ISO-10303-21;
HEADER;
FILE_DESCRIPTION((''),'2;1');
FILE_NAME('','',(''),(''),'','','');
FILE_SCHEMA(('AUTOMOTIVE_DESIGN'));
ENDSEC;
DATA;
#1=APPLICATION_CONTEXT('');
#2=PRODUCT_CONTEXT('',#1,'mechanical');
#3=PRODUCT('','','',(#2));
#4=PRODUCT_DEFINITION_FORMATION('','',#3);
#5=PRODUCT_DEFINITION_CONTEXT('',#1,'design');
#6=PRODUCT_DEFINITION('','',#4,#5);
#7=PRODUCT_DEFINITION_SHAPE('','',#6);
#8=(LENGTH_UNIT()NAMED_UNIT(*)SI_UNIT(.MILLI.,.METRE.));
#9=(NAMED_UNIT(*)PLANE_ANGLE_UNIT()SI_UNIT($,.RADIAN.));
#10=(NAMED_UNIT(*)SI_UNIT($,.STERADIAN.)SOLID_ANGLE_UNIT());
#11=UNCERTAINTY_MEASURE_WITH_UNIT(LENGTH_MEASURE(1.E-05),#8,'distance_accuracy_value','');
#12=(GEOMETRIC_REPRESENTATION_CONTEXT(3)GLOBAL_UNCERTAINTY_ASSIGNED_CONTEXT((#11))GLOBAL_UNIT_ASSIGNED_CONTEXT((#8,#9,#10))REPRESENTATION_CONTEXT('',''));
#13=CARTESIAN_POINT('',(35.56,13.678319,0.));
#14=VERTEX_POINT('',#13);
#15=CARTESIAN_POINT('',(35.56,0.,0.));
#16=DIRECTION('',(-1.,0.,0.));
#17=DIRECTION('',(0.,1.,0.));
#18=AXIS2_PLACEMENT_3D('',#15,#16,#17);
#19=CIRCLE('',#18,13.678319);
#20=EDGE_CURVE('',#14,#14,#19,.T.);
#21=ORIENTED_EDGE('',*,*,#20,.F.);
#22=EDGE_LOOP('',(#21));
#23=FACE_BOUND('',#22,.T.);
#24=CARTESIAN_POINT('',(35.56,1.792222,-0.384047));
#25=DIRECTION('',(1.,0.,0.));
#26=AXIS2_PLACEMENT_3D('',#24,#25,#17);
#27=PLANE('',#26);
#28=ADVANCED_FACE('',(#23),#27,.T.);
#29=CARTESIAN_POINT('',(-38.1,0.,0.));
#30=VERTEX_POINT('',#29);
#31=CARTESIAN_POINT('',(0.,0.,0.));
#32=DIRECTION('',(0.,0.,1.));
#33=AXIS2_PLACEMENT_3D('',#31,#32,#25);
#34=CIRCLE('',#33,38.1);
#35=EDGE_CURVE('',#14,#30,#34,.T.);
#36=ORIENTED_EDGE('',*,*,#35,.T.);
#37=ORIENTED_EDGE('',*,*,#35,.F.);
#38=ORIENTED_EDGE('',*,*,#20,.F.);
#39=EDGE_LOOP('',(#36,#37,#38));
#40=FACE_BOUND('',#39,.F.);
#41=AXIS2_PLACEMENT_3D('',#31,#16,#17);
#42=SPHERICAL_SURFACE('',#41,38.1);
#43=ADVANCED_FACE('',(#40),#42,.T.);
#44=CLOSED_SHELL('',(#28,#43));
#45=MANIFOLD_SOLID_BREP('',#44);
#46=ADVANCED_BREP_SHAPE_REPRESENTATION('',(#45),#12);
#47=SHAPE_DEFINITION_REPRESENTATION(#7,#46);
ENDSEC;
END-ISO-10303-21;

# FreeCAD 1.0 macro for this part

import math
import FreeCAD as App
import Part
import Sketcher
from FreeCAD import Vector
Q = App.Units.Quantity


def add_polygon(sketch, points):
    """Adds a closed chain of lines whose ends are joined by coincident constraints."""
    first, n = sketch.GeometryCount, len(points)
    for a, b in zip(points, points[1:] + points[:1]):
        sketch.addGeometry(Part.LineSegment(App.Vector(*a, 0), App.Vector(*b, 0)), False)
    for i in range(n):
        sketch.addConstraint(Sketcher.Constraint("Coincident", first + i, 2, first + (i + 1) % n, 1))

doc = App.newDocument("Part")
params = doc.addObject("Spreadsheet::Sheet", "Params")
for row, (alias, value) in enumerate([
    ("sketch1_radius", "1.5 in"),
    ("revolution_angle", "360 deg"),
    ("sketch2_height", "4 in"),
    ("pocket1_length", "1.38 in"),
], start=1):
    params.set(f"A{row}", alias)
    params.set(f"B{row}", "=" + value)
    params.setAlias(f"B{row}", alias)

body = doc.addObject("PartDesign::Body", "Body")

# Sketch on XY plane
sketch1 = body.newObject("Sketcher::SketchObject", "Sketch")
sketch1.AttachmentSupport = (doc.getObject("XY_Plane"), [""])
sketch1.MapMode = "FlatFace"
sketch1.addGeometry(Part.ArcOfCircle(Part.Circle(Vector(0, 0, 0), Vector(0, 0, 1), 38.1), math.radians(0), math.radians(180)), False)
sketch1.addGeometry(Part.LineSegment(Vector(-38.1, 0, 0), Vector(38.1, 0, 0)), False)
sketch1.addConstraint(Sketcher.Constraint("Coincident", 0, 1, 1, 2))
sketch1.addConstraint(Sketcher.Constraint("Coincident", 1, 1, 0, 2))
sketch1.addConstraint(Sketcher.Constraint("Horizontal", 1))
sketch1.addConstraint(Sketcher.Constraint("Coincident", 0, 3, -1, 1))
sketch1.addConstraint(Sketcher.Constraint("PointOnObject", 0, 1, -1))
sketch1.addConstraint(Sketcher.Constraint("Radius", 0, Q("1.5 in")))
sketch1.setExpression("Constraints[5]", "Params.sketch1_radius")
revolution = body.newObject("PartDesign::Revolution", "Revolution")
revolution.Profile = sketch1
revolution.ReferenceAxis = (sketch1, ["H_Axis"])
revolution.setExpression("Angle", "Params.revolution_angle")

# Sketch on YZ plane
sketch2 = body.newObject("Sketcher::SketchObject", "Sketch001")
sketch2.AttachmentSupport = (doc.getObject("YZ_Plane"), [""])
sketch2.MapMode = "FlatFace"
sketch2.AttachmentOffset = App.Placement(Vector(0, 0, 1.4 * 25.4), App.Rotation())
add_polygon(sketch2, [(-52.25033, 50.415953), (-52.25033, -51.184047), (55.834774, -51.184047), (55.834774, 50.415953)])  # lines 0-3
sketch2.addConstraint(Sketcher.Constraint("Vertical", 0))
sketch2.addConstraint(Sketcher.Constraint("Horizontal", 1))
sketch2.addConstraint(Sketcher.Constraint("Vertical", 2))
sketch2.addConstraint(Sketcher.Constraint("Horizontal", 3))
sketch2.addConstraint(Sketcher.Constraint("DistanceY", 0, 2, 0, 1, Q("4 in")))
sketch2.addConstraint(Sketcher.Constraint("DistanceX", 1, 1, 1, 2, 108.085104))
sketch2.addConstraint(Sketcher.Constraint("DistanceX", 0, 2, -1, 1, 52.25033))
sketch2.addConstraint(Sketcher.Constraint("DistanceY", 0, 2, -1, 1, 51.184047))
sketch2.setExpression("Constraints[8]", "Params.sketch2_height")
pocket1 = body.newObject("PartDesign::Pocket", "Pocket")
pocket1.Profile = sketch2
pocket1.setExpression("Length", "Params.pocket1_length")
pocket1.Reversed = True

doc.recompute()
